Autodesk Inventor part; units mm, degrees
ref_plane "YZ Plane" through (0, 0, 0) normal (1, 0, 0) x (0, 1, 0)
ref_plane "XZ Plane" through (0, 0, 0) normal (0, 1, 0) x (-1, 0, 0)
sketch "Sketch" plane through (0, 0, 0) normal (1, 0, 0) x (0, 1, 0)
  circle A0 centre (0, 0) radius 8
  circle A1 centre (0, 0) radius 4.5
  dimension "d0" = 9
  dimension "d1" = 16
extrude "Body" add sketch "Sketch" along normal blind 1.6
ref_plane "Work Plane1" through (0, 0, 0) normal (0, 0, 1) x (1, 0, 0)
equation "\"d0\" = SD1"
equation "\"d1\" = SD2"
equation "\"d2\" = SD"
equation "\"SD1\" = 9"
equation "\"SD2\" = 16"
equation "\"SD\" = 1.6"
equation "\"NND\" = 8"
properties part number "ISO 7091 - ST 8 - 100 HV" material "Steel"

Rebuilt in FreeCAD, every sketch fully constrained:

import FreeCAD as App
import Part
import Sketcher
from FreeCAD import Vector

doc = App.newDocument("Part")
params = doc.addObject("Spreadsheet::Sheet", "Params")
for row, (alias, value) in enumerate([
    ("sketch1_diameter", "16 mm"),
    ("sketch1_diameter2", "9 mm"),
    ("pad1_length", "1.6 mm"),
], start=1):
    params.set(f"A{row}", alias)
    params.set(f"B{row}", "=" + value)
    params.setAlias(f"B{row}", alias)

body = doc.addObject("PartDesign::Body", "Body")

sketch1 = body.newObject("Sketcher::SketchObject", "Sketch")
sketch1.AttachmentSupport = (doc.getObject("YZ_Plane"), [""])
sketch1.MapMode = "FlatFace"
sketch1.addGeometry(Part.Circle(Vector(0, 0, 0), Vector(0, 0, 1), 8), False)
sketch1.addGeometry(Part.Circle(Vector(0, 0, 0), Vector(0, 0, 1), 4.5), False)
sketch1.addConstraint(Sketcher.Constraint("Coincident", 0, 3, -1, 1))
sketch1.addConstraint(Sketcher.Constraint("Coincident", 1, 3, -1, 1))
sketch1.addConstraint(Sketcher.Constraint("Diameter", 0, 16.0))
sketch1.addConstraint(Sketcher.Constraint("Diameter", 1, 9.0))
sketch1.setExpression("Constraints[2]", "Params.sketch1_diameter")
sketch1.setExpression("Constraints[3]", "Params.sketch1_diameter2")
pad1 = body.newObject("PartDesign::Pad", "Pad")
pad1.Profile = sketch1
pad1.setExpression("Length", "Params.pad1_length")

doc.recompute()
